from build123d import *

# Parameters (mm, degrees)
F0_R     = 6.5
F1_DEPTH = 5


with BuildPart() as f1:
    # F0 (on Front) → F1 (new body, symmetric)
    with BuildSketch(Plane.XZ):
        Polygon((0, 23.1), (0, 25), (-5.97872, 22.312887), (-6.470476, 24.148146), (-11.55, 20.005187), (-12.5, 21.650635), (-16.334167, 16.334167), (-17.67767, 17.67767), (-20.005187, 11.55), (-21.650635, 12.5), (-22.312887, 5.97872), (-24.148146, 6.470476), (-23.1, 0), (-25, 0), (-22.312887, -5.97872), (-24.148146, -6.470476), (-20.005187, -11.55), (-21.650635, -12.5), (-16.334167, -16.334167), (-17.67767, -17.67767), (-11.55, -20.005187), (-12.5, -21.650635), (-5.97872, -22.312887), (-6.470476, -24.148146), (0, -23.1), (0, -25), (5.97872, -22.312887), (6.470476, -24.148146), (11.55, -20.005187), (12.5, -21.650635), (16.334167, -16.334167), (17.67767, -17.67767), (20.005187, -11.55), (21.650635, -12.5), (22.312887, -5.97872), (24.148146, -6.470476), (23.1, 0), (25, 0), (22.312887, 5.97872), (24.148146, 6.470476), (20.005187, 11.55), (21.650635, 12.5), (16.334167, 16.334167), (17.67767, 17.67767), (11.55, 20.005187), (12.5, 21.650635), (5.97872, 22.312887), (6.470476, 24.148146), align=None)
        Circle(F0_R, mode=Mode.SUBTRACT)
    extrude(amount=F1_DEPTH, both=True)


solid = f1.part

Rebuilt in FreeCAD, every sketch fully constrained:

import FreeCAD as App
import Part
import Sketcher
from FreeCAD import Vector
Q = App.Units.Quantity


def add_polygon(sketch, points):
    """Adds a closed chain of lines whose ends are joined by coincident constraints."""
    first, n = sketch.GeometryCount, len(points)
    for a, b in zip(points, points[1:] + points[:1]):
        sketch.addGeometry(Part.LineSegment(App.Vector(*a, 0), App.Vector(*b, 0)), False)
    for i in range(n):
        sketch.addConstraint(Sketcher.Constraint("Coincident", first + i, 2, first + (i + 1) % n, 1))

doc = App.newDocument("Part")
body = doc.addObject("PartDesign::Body", "Body")

sketch1 = body.newObject("Sketcher::SketchObject", "Sketch")
sketch1.AttachmentSupport = (doc.getObject("XZ_Plane"), [""])
sketch1.MapMode = "FlatFace"
add_polygon(sketch1, [(0, 23.1), (0, 25), (-6, 22.3), (-6.5, 24.1), (-11.6, 20), (-12.5, 21.7), (-16.3, 16.3), (-17.7, 17.7), (-20, 11.6), (-21.7, 12.5), (-22.3, 6), (-24.1, 6.5), (-23.1, 0), (-25, 0), (-22.3, -6), (-24.1, -6.5), (-20, -11.6), (-21.7, -12.5), (-16.3, -16.3), (-17.7, -17.7), (-11.6, -20), (-12.5, -21.7), (-6, -22.3), (-6.5, -24.1), (0, -23.1), (0, -25), (6, -22.3), (6.5, -24.1), (11.6, -20), (12.5, -21.7), (16.3, -16.3), (17.7, -17.7), (20, -11.6), (21.7, -12.5), (22.3, -6), (24.1, -6.5), (23.1, 0), (25, 0), (22.3, 6), (24.1, 6.5), (20, 11.6), (21.7, 12.5), (16.3, 16.3), (17.7, 17.7), (11.6, 20), (12.5, 21.7), (6, 22.3), (6.5, 24.1)])
sketch1.addGeometry(Part.Circle(Vector(0, 0, 0), Vector(0, 0, 1), 6.5), False)
sketch1.addConstraint(Sketcher.Constraint("Vertical", 0))
sketch1.addConstraint(Sketcher.Constraint("Horizontal", 12))
sketch1.addConstraint(Sketcher.Constraint("Vertical", 24))
sketch1.addConstraint(Sketcher.Constraint("Horizontal", 36))
sketch1.addConstraint(Sketcher.Constraint("Coincident", 48, 3, -1, 1))
sketch1.addConstraint(Sketcher.Constraint("Symmetric", 0, 2, 24, 2, -1, 1))
sketch1.addConstraint(Sketcher.Constraint("Symmetric", 1, 2, 25, 2, -1, 1))
sketch1.addConstraint(Sketcher.Constraint("Symmetric", 2, 2, 26, 2, -1, 1))
sketch1.addConstraint(Sketcher.Constraint("Symmetric", 3, 2, 27, 2, -1, 1))
sketch1.addConstraint(Sketcher.Constraint("Symmetric", 4, 2, 28, 2, -1, 1))
sketch1.addConstraint(Sketcher.Constraint("Symmetric", 5, 2, 29, 2, -1, 1))
sketch1.addConstraint(Sketcher.Constraint("Symmetric", 6, 2, 30, 2, -1, 1))
sketch1.addConstraint(Sketcher.Constraint("Symmetric", 7, 2, 31, 2, -1, 1))
sketch1.addConstraint(Sketcher.Constraint("Symmetric", 8, 2, 32, 2, -1, 1))
sketch1.addConstraint(Sketcher.Constraint("Symmetric", 9, 2, 33, 2, -1, 1))
sketch1.addConstraint(Sketcher.Constraint("Symmetric", 10, 2, 34, 2, -1, 1))
sketch1.addConstraint(Sketcher.Constraint("Symmetric", 11, 2, 35, 2, -1, 1))
sketch1.addConstraint(Sketcher.Constraint("Symmetric", 13, 2, 37, 2, -1, 1))
sketch1.addConstraint(Sketcher.Constraint("Symmetric", 14, 2, 38, 2, -1, 1))
sketch1.addConstraint(Sketcher.Constraint("Symmetric", 15, 2, 39, 2, -1, 1))
sketch1.addConstraint(Sketcher.Constraint("Symmetric", 16, 2, 40, 2, -1, 1))
sketch1.addConstraint(Sketcher.Constraint("Symmetric", 17, 2, 41, 2, -1, 1))
sketch1.addConstraint(Sketcher.Constraint("Symmetric", 18, 2, 42, 2, -1, 1))
sketch1.addConstraint(Sketcher.Constraint("Symmetric", 19, 2, 43, 2, -1, 1))
sketch1.addConstraint(Sketcher.Constraint("Symmetric", 20, 2, 44, 2, -1, 1))
sketch1.addConstraint(Sketcher.Constraint("Symmetric", 21, 2, 45, 2, -1, 1))
sketch1.addConstraint(Sketcher.Constraint("Symmetric", 22, 2, 46, 2, -1, 1))
sketch1.addConstraint(Sketcher.Constraint("Symmetric", 21, 2, 25, 2, -2))
sketch1.addConstraint(Sketcher.Constraint("Symmetric", 22, 2, 26, 2, -2))
sketch1.addConstraint(Sketcher.Constraint("Symmetric", 19, 2, 27, 2, -2))
sketch1.addConstraint(Sketcher.Constraint("Symmetric", 20, 2, 28, 2, -2))
sketch1.addConstraint(Sketcher.Constraint("Symmetric", 17, 2, 29, 2, -2))
sketch1.addConstraint(Sketcher.Constraint("Symmetric", 18, 2, 30, 2, -2))
sketch1.addConstraint(Sketcher.Constraint("Symmetric", 15, 2, 31, 2, -2))
sketch1.addConstraint(Sketcher.Constraint("Symmetric", 16, 2, 32, 2, -2))
sketch1.addConstraint(Sketcher.Constraint("Symmetric", 13, 2, 33, 2, -2))
sketch1.addConstraint(Sketcher.Constraint("Symmetric", 14, 2, 34, 2, -2))
sketch1.addConstraint(Sketcher.Constraint("Symmetric", 12, 2, 36, 2, -2))
sketch1.addConstraint(Sketcher.Constraint("Symmetric", 23, 2, 47, 2, -1))
sketch1.addConstraint(Sketcher.Constraint("Perpendicular", 1, 13))
sketch1.addConstraint(Sketcher.Constraint("Perpendicular", 2, 14))
sketch1.addConstraint(Sketcher.Constraint("Perpendicular", 3, 15))
sketch1.addConstraint(Sketcher.Constraint("Perpendicular", 4, 16))
sketch1.addConstraint(Sketcher.Constraint("Perpendicular", 5, 17))
sketch1.addConstraint(Sketcher.Constraint("Perpendicular", 6, 18))
sketch1.addConstraint(Sketcher.Constraint("Perpendicular", 7, 19))
sketch1.addConstraint(Sketcher.Constraint("Perpendicular", 9, 21))
sketch1.addConstraint(Sketcher.Constraint("Perpendicular", 11, 23))
sketch1.addConstraint(Sketcher.Constraint("Equal", 36, 0))
sketch1.addConstraint(Sketcher.Constraint("Equal", 1, 3))
sketch1.addConstraint(Sketcher.Constraint("Equal", 2, 4))
sketch1.addConstraint(Sketcher.Constraint("Equal", 3, 5))
sketch1.addConstraint(Sketcher.Constraint("Equal", 4, 6))
sketch1.addConstraint(Sketcher.Constraint("Equal", 5, 7))
sketch1.addConstraint(Sketcher.Constraint("Equal", 6, 8))
sketch1.addConstraint(Sketcher.Constraint("Equal", 7, 9))
sketch1.addConstraint(Sketcher.Constraint("Equal", 8, 10))
sketch1.addConstraint(Sketcher.Constraint("Equal", 9, 11))
sketch1.addConstraint(Sketcher.Constraint("Diameter", 48, Q("13 mm")))
sketch1.addConstraint(Sketcher.Constraint("Angle", 2, Q("104.999995 deg")))
sketch1.addConstraint(Sketcher.Constraint("Angle", 4, Q("120.000004 deg")))
sketch1.addConstraint(Sketcher.Constraint("DistanceX", 12, 2, 12, 1, Q("1.9 mm")))
sketch1.addConstraint(Sketcher.Constraint("DistanceY", -1, 1, 0, 2, Q("25 mm")))
sketch1.addConstraint(Sketcher.Constraint("Distance", 2, Q("1.9 mm")))
pad1 = body.newObject("PartDesign::Pad", "Pad")
pad1.Profile = sketch1
pad1.Length = 10
pad1.Midplane = True

doc.recompute()
